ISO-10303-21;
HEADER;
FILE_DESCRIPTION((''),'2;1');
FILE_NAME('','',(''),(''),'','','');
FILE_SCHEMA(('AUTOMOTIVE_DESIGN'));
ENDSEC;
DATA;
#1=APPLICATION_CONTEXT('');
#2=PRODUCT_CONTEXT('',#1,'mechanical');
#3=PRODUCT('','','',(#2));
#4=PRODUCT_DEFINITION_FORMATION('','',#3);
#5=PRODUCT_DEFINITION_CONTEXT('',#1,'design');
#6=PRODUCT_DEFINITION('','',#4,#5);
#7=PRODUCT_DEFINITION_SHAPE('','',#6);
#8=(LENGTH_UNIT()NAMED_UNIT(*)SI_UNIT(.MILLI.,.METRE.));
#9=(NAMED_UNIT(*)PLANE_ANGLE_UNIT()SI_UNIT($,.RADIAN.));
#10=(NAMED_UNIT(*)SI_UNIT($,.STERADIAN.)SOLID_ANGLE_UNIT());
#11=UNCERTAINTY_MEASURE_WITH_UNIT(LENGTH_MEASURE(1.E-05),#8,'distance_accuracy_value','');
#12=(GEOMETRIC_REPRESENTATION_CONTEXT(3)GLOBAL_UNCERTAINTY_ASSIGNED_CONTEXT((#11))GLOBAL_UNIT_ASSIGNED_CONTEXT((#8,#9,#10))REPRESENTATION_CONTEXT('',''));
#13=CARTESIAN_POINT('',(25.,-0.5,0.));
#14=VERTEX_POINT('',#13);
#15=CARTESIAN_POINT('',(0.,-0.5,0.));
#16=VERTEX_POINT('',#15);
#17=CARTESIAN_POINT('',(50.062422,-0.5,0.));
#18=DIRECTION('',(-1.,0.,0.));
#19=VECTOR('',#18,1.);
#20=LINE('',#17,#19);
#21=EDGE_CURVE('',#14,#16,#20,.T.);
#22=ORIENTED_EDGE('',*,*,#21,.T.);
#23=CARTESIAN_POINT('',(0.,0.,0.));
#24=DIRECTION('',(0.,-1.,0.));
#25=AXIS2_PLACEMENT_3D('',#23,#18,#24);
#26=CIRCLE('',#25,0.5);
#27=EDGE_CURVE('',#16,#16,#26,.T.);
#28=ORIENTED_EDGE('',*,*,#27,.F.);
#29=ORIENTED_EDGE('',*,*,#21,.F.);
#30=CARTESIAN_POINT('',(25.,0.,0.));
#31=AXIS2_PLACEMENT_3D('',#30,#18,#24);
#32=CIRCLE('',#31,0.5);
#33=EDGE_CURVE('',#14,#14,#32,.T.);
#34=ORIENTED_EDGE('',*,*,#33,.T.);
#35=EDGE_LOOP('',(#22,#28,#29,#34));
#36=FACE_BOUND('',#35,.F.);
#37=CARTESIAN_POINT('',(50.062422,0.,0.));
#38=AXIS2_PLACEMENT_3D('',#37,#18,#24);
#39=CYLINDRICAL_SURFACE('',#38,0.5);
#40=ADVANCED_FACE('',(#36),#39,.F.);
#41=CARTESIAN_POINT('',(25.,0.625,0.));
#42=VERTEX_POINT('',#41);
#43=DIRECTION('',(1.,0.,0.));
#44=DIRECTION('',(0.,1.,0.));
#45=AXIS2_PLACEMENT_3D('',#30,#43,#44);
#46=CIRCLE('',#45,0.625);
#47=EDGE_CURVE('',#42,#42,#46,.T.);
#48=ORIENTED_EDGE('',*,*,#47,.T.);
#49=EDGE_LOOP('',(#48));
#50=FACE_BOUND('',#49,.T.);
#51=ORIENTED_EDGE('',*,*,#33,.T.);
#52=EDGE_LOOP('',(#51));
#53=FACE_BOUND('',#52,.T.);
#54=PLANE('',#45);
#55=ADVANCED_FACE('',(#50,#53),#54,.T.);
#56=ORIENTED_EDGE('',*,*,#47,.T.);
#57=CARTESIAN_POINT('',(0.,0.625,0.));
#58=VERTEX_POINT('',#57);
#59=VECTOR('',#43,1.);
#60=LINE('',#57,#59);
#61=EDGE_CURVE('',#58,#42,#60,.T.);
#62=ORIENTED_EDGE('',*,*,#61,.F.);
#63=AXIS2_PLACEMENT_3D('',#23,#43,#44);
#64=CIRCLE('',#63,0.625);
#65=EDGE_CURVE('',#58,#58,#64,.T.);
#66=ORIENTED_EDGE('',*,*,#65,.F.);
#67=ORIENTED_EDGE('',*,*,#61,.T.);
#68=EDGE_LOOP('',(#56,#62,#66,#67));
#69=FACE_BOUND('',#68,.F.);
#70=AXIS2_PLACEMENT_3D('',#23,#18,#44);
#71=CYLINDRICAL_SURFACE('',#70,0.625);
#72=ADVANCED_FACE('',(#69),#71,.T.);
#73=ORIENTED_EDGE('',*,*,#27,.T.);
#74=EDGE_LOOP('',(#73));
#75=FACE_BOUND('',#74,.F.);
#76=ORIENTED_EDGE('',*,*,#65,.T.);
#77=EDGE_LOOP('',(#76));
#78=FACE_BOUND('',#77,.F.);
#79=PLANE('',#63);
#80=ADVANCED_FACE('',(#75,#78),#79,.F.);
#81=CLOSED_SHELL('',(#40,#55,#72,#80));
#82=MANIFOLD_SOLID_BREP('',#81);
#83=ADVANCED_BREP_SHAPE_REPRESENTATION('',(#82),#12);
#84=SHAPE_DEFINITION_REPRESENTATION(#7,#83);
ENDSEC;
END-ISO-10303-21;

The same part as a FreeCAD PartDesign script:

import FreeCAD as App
import Part
import Sketcher
from FreeCAD import Vector
Q = App.Units.Quantity

doc = App.newDocument("Part")
params = doc.addObject("Spreadsheet::Sheet", "Params")
for row, (alias, value) in enumerate([
    ("sketch1_diameter", "1.25 mm"),
    ("pad1_length", "25 mm"),
    ("sketch2_diameter", "1 mm"),
    ("hole_diameter", "1 mm"),
], start=1):
    params.set(f"A{row}", alias)
    params.set(f"B{row}", "=" + value)
    params.setAlias(f"B{row}", alias)

body = doc.addObject("PartDesign::Body", "Body")

# Sketch on YZ plane
sketch1 = body.newObject("Sketcher::SketchObject", "Sketch")
sketch1.AttachmentSupport = (doc.getObject("YZ_Plane"), [""])
sketch1.MapMode = "FlatFace"
sketch1.addGeometry(Part.Circle(Vector(0, 0, 0), Vector(0, 0, 1), 0.6), False)
sketch1.addConstraint(Sketcher.Constraint("Coincident", 0, 3, -1, 1))
sketch1.addConstraint(Sketcher.Constraint("Diameter", 0, Q("1.25 mm")))
sketch1.setExpression("Constraints[1]", "Params.sketch1_diameter")
pad1 = body.newObject("PartDesign::Pad", "Pad")
pad1.Profile = sketch1
pad1.setExpression("Length", "Params.pad1_length")

# Sketch on YZ plane
sketch2 = body.newObject("Sketcher::SketchObject", "Sketch001")
sketch2.AttachmentSupport = (doc.getObject("YZ_Plane"), [""])
sketch2.MapMode = "FlatFace"
sketch2.AttachmentOffset = App.Placement(Vector(0, 0, 25), App.Rotation())
sketch2.addGeometry(Part.Circle(Vector(0, 0, 0), Vector(0, 0, 1), 0.5), False)
sketch2.addConstraint(Sketcher.Constraint("Coincident", 0, 3, -1, 1))
sketch2.addConstraint(Sketcher.Constraint("Diameter", 0, Q("1 mm")))
sketch2.setExpression("Constraints[1]", "Params.sketch2_diameter")
doc.recompute()
hole = body.newObject("PartDesign::Hole", "Hole")
hole.Profile = sketch2
hole.ThreadType = "None"
hole.setExpression("Diameter", "Params.hole_diameter")
hole.DepthType = "ThroughAll"

doc.recompute()
